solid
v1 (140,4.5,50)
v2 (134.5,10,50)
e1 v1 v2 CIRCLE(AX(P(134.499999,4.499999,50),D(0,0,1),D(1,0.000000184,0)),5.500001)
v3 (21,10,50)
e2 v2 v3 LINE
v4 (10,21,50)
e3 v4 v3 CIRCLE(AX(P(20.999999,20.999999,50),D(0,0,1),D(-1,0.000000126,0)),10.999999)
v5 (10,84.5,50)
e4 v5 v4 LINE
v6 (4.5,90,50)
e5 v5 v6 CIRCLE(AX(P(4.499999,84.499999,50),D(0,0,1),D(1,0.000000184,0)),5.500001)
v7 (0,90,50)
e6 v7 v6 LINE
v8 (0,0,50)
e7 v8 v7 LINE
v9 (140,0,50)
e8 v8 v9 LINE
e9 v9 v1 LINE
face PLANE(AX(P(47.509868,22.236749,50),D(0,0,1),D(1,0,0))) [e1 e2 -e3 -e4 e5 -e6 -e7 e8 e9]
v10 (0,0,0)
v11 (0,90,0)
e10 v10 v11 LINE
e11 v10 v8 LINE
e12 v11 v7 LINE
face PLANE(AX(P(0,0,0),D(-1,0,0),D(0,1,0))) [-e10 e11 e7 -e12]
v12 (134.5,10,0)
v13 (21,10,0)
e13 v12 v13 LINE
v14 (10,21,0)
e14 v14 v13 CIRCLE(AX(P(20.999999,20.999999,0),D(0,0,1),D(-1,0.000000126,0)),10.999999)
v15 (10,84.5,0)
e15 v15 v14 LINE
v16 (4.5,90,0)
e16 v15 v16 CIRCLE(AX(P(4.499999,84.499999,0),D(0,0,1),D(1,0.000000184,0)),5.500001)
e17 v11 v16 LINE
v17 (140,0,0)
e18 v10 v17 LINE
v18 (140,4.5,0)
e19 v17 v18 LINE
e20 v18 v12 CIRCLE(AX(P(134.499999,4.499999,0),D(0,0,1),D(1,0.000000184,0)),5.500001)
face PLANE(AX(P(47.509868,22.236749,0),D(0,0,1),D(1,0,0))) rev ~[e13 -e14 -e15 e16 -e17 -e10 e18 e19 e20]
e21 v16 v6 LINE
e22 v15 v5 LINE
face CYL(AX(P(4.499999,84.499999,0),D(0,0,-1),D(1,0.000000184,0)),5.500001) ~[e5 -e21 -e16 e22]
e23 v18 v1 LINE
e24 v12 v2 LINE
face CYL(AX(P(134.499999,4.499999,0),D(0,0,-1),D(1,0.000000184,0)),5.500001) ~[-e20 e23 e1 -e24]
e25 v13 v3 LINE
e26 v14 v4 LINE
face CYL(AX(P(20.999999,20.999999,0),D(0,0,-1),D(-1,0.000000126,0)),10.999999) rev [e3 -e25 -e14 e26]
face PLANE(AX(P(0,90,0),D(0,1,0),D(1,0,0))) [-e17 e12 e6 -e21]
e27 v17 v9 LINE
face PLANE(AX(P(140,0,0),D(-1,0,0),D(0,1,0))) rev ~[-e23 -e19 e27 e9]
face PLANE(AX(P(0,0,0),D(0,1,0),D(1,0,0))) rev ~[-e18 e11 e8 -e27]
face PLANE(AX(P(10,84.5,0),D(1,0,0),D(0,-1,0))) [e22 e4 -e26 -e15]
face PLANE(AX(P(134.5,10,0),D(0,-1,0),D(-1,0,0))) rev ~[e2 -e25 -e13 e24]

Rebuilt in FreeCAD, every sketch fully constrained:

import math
import FreeCAD as App
import Part
import Sketcher
from FreeCAD import Vector

doc = App.newDocument("Part")
body = doc.addObject("PartDesign::Body", "Body")

sketch1 = body.newObject("Sketcher::SketchObject", "Sketch")
sketch1.AttachmentSupport = (doc.getObject("XY_Plane"), [""])
sketch1.MapMode = "FlatFace"
sketch1.addGeometry(Part.LineSegment(Vector(0, 0, 0), Vector(140, 0, 0)), False)
sketch1.addGeometry(Part.LineSegment(Vector(140, 0, 0), Vector(140, 4.5, 0)), False)
sketch1.addGeometry(Part.ArcOfCircle(Part.Circle(Vector(134.499999, 4.499999, 0), Vector(0, 0, 1), 5.500001), math.radians(0.000011), math.radians(89.999989)), False)
sketch1.addGeometry(Part.LineSegment(Vector(134.5, 10, 0), Vector(21, 10, 0)), False)
sketch1.addGeometry(Part.ArcOfCircle(Part.Circle(Vector(20.999999, 20.999999, 0), Vector(0, 0, 1), 10.999999), math.radians(179.999993), math.radians(270.000007)), False)
sketch1.addGeometry(Part.LineSegment(Vector(10, 21, 0), Vector(10, 84.5, 0)), False)
sketch1.addGeometry(Part.ArcOfCircle(Part.Circle(Vector(4.499999, 84.499999, 0), Vector(0, 0, 1), 5.500001), math.radians(0.000011), math.radians(89.999989)), False)
sketch1.addGeometry(Part.LineSegment(Vector(4.5, 90, 0), Vector(0, 90, 0)), False)
sketch1.addGeometry(Part.LineSegment(Vector(0, 90, 0), Vector(0, 0, 0)), False)
sketch1.addConstraint(Sketcher.Constraint("Coincident", 0, 2, 1, 1))
sketch1.addConstraint(Sketcher.Constraint("Tangent", 1, 2, 2, 1))
sketch1.addConstraint(Sketcher.Constraint("Tangent", 2, 2, 3, 1))
sketch1.addConstraint(Sketcher.Constraint("Tangent", 3, 2, 4, 2))
sketch1.addConstraint(Sketcher.Constraint("Tangent", 4, 1, 5, 1))
sketch1.addConstraint(Sketcher.Constraint("Tangent", 5, 2, 6, 1))
sketch1.addConstraint(Sketcher.Constraint("Tangent", 6, 2, 7, 1))
sketch1.addConstraint(Sketcher.Constraint("Coincident", 7, 2, 8, 1))
sketch1.addConstraint(Sketcher.Constraint("Coincident", 8, 2, 0, 1))
sketch1.addConstraint(Sketcher.Constraint("Horizontal", 0))
sketch1.addConstraint(Sketcher.Constraint("Vertical", 1))
sketch1.addConstraint(Sketcher.Constraint("Horizontal", 3))
sketch1.addConstraint(Sketcher.Constraint("Vertical", 5))
sketch1.addConstraint(Sketcher.Constraint("Horizontal", 7))
sketch1.addConstraint(Sketcher.Constraint("Vertical", 8))
sketch1.addConstraint(Sketcher.Constraint("Coincident", 8, 2, -1, 1))
sketch1.addConstraint(Sketcher.Constraint("Equal", 2, 6))
sketch1.addConstraint(Sketcher.Constraint("Equal", 7, 1))
sketch1.addConstraint(Sketcher.Constraint("Radius", 4, 10.999999))
sketch1.addConstraint(Sketcher.Constraint("Radius", 2, 5.500001))
sketch1.addConstraint(Sketcher.Constraint("DistanceX", 0, 1, 0, 2, 140.0))
sketch1.addConstraint(Sketcher.Constraint("DistanceY", 8, 2, 8, 1, 90.0))
sketch1.addConstraint(Sketcher.Constraint("DistanceX", 3, 2, 3, 1, 113.5))
pad1 = body.newObject("PartDesign::Pad", "Pad")
pad1.Profile = sketch1
pad1.Length = 50

doc.recompute()
